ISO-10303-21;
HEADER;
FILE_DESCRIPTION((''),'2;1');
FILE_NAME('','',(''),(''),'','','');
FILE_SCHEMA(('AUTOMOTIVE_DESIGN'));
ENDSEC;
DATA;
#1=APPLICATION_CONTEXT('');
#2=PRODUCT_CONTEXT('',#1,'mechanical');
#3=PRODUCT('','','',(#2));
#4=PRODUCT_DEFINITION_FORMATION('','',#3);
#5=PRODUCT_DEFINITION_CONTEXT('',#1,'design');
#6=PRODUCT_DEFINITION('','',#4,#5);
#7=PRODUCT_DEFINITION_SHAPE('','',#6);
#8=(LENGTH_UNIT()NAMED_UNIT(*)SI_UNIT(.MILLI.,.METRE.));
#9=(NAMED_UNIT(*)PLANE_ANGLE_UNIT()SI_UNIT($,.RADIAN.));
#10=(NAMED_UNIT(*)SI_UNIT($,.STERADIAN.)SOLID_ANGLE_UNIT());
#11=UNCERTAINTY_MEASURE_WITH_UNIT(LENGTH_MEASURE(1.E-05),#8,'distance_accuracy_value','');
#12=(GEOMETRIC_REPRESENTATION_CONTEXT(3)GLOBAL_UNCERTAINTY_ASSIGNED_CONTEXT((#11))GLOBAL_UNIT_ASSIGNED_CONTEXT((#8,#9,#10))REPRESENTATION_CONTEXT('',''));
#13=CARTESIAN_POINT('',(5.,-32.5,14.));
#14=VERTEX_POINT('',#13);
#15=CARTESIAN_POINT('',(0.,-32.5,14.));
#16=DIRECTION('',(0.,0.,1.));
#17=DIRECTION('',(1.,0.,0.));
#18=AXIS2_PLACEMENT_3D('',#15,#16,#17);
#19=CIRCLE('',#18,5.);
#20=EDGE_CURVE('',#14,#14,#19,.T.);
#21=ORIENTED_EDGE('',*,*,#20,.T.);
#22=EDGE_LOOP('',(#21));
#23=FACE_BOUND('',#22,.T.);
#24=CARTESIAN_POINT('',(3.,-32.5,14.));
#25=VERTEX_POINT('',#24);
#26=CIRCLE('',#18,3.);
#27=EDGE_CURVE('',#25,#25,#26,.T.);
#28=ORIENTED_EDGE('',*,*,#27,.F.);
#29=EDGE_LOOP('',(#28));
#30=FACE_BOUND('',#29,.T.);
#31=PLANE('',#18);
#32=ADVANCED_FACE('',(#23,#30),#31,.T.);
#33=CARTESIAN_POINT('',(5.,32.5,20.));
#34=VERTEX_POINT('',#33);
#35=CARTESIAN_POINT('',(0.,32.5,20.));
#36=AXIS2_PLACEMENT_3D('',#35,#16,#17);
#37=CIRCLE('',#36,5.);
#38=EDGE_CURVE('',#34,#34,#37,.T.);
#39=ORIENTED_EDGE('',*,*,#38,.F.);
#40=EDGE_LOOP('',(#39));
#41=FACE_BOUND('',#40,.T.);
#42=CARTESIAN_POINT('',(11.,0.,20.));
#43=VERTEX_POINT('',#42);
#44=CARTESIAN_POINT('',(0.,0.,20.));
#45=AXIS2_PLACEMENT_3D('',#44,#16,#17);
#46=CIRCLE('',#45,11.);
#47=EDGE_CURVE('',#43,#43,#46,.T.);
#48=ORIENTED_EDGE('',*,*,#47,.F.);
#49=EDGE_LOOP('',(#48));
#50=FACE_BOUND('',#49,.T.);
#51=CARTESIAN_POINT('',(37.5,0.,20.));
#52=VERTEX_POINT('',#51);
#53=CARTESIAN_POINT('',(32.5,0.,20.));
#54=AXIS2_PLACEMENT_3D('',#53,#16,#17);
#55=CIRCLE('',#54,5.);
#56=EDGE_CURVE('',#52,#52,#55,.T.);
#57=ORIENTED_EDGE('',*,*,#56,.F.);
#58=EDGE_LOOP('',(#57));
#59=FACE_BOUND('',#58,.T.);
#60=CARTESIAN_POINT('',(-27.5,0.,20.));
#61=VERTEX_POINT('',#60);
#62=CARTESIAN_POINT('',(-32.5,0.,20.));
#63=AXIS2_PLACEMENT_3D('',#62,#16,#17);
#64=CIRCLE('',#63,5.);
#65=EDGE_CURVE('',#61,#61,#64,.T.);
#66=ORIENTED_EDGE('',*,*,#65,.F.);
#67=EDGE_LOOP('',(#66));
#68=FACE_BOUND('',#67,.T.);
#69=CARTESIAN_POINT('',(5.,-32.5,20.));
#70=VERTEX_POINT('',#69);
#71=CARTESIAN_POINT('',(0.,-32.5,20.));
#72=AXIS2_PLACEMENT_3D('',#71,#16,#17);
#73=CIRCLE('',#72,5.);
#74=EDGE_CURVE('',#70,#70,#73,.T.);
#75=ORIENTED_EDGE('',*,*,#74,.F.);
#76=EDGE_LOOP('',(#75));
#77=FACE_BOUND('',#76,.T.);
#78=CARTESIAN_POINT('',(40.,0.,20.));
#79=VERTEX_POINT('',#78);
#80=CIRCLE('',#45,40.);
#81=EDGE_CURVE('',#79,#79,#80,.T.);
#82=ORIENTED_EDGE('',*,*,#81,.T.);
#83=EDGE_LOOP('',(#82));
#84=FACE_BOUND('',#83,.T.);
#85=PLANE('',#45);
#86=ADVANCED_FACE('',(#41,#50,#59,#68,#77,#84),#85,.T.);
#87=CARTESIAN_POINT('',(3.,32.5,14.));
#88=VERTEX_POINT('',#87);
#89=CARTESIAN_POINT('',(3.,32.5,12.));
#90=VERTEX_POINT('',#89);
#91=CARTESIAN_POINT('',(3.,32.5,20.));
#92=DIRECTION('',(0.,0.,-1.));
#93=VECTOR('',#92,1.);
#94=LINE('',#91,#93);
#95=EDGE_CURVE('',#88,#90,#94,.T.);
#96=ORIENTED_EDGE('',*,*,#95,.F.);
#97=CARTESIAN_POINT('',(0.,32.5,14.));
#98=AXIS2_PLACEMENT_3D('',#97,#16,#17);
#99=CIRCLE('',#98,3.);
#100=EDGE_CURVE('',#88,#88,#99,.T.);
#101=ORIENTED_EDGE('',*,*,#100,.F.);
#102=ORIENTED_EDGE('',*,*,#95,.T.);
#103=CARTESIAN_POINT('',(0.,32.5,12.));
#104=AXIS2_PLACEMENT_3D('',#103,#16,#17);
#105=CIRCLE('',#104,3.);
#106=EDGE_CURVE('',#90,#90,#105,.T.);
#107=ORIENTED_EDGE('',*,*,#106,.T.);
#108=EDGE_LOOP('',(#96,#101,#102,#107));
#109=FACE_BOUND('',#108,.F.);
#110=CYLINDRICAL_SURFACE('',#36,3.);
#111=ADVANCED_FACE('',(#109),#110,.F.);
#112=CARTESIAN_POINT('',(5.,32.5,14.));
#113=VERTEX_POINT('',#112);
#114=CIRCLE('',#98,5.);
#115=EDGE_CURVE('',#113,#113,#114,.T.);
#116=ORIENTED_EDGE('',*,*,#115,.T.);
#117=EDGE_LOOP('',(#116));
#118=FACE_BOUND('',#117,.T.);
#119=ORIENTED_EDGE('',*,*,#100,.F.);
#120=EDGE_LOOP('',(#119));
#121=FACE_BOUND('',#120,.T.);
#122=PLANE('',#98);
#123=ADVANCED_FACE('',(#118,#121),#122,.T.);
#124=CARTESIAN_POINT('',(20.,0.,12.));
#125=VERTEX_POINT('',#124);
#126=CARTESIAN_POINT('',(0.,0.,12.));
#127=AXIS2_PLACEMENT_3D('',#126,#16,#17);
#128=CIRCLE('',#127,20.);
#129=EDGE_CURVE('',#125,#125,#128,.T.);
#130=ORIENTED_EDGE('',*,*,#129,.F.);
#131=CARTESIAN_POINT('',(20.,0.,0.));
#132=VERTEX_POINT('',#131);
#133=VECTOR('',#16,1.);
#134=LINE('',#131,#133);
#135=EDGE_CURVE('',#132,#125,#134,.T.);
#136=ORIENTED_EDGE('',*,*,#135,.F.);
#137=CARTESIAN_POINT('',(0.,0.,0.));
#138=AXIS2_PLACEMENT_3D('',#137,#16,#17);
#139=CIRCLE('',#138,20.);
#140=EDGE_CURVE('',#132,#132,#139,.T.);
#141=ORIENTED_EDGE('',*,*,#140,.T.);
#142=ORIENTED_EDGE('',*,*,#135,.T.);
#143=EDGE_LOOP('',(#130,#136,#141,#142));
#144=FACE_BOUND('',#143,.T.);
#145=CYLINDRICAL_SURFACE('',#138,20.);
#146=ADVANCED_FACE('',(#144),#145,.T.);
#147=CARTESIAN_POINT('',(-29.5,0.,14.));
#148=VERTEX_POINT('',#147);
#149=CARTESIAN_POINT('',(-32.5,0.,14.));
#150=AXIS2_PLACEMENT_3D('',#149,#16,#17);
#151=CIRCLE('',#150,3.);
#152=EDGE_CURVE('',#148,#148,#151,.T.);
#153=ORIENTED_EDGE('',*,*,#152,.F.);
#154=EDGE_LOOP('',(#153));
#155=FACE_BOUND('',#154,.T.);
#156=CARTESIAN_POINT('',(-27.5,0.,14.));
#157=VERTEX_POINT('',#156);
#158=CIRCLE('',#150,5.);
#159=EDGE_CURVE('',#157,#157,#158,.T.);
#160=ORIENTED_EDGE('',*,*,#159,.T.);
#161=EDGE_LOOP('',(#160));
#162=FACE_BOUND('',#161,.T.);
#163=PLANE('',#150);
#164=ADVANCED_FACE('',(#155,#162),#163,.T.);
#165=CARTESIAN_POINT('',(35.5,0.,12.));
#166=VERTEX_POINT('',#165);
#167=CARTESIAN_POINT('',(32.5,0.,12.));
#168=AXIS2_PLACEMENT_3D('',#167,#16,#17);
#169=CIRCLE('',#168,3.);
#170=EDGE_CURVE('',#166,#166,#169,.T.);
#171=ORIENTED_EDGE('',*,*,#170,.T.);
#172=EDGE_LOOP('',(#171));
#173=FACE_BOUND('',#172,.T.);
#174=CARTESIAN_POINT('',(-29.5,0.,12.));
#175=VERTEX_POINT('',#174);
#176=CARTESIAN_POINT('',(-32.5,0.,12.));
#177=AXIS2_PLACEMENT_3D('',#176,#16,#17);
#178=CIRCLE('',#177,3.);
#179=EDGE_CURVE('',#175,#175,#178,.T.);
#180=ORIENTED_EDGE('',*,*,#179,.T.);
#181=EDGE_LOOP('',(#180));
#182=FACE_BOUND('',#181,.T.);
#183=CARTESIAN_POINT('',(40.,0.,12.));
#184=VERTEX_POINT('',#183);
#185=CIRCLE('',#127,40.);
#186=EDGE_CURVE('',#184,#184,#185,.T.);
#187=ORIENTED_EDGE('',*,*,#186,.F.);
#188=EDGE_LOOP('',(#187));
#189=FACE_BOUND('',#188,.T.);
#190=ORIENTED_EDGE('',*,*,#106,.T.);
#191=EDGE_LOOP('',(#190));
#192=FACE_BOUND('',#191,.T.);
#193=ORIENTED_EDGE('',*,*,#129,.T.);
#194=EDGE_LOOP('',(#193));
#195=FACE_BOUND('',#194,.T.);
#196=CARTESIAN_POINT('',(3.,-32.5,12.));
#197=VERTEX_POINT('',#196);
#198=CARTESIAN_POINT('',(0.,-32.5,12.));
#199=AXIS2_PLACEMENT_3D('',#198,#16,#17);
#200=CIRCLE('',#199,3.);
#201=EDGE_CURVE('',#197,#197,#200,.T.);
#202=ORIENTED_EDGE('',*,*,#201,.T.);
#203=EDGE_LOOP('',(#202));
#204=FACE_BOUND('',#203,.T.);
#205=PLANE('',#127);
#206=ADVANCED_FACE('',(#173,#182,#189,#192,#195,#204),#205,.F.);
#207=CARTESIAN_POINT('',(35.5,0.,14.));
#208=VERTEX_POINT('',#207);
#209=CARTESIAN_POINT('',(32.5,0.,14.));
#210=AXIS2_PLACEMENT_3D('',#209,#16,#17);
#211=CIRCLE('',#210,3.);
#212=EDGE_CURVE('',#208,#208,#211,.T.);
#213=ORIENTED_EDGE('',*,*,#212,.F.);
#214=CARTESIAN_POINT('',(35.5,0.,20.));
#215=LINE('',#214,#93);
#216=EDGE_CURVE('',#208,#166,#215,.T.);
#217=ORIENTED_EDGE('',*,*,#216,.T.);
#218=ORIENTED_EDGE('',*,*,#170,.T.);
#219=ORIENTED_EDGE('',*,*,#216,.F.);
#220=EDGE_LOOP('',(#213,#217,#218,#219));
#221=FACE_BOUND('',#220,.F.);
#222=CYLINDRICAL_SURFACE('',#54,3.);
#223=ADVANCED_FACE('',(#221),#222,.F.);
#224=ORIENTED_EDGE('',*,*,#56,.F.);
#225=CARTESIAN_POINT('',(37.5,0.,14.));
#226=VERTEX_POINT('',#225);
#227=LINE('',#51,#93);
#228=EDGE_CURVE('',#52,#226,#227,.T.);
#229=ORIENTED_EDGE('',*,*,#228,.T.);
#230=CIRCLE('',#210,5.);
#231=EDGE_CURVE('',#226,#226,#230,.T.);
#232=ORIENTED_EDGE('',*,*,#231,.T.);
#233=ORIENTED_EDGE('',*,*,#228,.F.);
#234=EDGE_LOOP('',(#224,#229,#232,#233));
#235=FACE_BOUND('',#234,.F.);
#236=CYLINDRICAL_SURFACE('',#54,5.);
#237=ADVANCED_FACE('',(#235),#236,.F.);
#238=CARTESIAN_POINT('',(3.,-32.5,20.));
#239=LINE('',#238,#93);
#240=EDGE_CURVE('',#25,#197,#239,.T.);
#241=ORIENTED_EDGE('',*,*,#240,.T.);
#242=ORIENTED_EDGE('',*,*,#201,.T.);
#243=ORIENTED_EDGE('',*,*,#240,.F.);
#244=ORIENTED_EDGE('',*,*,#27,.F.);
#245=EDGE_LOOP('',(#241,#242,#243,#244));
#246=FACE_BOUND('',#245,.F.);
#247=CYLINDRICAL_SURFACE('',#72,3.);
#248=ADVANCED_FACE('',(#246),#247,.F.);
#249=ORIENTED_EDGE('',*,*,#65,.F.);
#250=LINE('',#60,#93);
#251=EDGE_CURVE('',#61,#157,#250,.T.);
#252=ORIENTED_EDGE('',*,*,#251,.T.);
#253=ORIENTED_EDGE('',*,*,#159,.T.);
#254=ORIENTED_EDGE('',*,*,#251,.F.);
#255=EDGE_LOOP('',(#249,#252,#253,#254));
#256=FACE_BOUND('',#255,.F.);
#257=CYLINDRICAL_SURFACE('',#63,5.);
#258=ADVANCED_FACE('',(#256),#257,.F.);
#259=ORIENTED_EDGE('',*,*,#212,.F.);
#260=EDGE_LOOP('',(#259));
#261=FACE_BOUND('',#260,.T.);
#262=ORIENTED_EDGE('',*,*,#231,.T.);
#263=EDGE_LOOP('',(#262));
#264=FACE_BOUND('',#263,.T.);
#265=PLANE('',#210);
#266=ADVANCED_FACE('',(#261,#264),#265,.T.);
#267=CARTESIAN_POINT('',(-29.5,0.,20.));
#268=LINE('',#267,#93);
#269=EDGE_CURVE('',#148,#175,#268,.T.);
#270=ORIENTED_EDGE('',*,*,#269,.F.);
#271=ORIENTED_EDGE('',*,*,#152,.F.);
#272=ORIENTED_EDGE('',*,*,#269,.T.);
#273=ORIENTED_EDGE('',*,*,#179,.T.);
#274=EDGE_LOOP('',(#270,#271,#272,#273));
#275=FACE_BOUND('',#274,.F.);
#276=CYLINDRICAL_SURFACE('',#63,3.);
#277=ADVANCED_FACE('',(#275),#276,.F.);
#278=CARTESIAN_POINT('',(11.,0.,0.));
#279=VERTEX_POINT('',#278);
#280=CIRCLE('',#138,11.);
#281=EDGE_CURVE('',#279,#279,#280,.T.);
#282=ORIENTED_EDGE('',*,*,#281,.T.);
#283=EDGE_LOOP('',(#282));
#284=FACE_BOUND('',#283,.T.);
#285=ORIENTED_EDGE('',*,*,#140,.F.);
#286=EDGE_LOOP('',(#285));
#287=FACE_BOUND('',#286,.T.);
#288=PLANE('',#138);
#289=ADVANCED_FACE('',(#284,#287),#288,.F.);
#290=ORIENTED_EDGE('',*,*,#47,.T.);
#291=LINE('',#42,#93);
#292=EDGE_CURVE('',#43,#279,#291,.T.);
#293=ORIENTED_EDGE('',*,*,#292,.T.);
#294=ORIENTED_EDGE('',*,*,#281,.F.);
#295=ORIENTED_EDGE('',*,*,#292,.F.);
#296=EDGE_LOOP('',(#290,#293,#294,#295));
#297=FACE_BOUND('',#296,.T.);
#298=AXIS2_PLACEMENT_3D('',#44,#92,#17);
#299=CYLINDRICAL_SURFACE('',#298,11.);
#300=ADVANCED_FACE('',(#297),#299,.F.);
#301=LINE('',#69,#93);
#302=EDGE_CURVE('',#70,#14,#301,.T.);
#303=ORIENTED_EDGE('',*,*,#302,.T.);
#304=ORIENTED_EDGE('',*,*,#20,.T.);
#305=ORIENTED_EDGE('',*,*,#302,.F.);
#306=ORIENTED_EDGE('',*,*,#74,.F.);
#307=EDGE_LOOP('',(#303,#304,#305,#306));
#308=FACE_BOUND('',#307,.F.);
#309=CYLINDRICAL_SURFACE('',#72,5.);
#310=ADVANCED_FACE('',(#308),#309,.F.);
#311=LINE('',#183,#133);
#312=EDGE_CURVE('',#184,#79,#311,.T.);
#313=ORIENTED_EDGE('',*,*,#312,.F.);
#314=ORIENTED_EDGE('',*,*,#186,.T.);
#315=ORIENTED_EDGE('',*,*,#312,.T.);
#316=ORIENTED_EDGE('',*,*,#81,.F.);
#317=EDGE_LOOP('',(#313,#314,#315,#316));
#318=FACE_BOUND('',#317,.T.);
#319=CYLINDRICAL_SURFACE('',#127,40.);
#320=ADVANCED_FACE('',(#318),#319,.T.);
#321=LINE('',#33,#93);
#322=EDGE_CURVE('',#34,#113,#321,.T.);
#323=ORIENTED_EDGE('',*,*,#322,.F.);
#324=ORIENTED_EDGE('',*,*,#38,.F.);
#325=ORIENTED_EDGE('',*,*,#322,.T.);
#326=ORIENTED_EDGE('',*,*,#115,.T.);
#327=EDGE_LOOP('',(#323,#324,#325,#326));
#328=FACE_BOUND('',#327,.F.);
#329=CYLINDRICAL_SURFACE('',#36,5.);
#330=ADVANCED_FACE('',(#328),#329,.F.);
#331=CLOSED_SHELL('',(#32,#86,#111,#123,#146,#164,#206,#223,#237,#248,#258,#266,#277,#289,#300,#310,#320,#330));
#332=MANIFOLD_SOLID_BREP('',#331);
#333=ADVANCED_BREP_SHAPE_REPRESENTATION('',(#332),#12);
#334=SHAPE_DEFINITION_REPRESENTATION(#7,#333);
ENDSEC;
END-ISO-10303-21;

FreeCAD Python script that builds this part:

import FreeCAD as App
import Part
import Sketcher

V = App.Vector

doc = App.newDocument("Part")
params = doc.addObject("Spreadsheet::Sheet", "Params")
for row, (alias, value) in enumerate([
    ("sketch1_width", "9 mm"),
    ("sketch1_width2", "20 mm"),
    ("sketch1_height", "12 mm"),
    ("revolution_angle", "360 deg"),
    ("sketch2_diameter", "6 mm"),
    ("sketch3_diameter", "10 mm"),
    ("pocket2_length", "6 mm"),
], start=1):
    params.set(f"A{row}", alias)
    params.set(f"B{row}", "=" + value)
    params.setAlias(f"B{row}", alias)

body = doc.addObject("PartDesign::Body", "Body")

# Sketch on XZ plane
sketch1 = body.newObject("Sketcher::SketchObject", "Sketch")
sketch1.AttachmentSupport = (doc.getObject("XZ_Plane"), [""])
sketch1.MapMode = "FlatFace"
sketch1.addGeometry([
    Part.LineSegment(V(11, 20, 0), V(11, 0, 0)),  # 0
    Part.LineSegment(V(11, 0, 0), V(20, 0, 0)),  # 1
    Part.LineSegment(V(20, 0, 0), V(20, 12, 0)),  # 2
    Part.LineSegment(V(20, 12, 0), V(40, 12, 0)),  # 3
    Part.LineSegment(V(40, 12, 0), V(40, 20, 0)),  # 4
    Part.LineSegment(V(40, 20, 0), V(11, 20, 0)),  # 5
], False)
sketch1.addConstraint([
    Sketcher.Constraint("Coincident", 0, 2, 1, 1),
    Sketcher.Constraint("Coincident", 1, 2, 2, 1),
    Sketcher.Constraint("Coincident", 2, 2, 3, 1),
    Sketcher.Constraint("Coincident", 3, 2, 4, 1),
    Sketcher.Constraint("Coincident", 4, 2, 5, 1),
    Sketcher.Constraint("Coincident", 5, 2, 0, 1),
    Sketcher.Constraint("Vertical", 0),
    Sketcher.Constraint("Horizontal", 1),
    Sketcher.Constraint("Vertical", 2),
    Sketcher.Constraint("Horizontal", 3),
    Sketcher.Constraint("Vertical", 4),
    Sketcher.Constraint("Horizontal", 5),
    Sketcher.Constraint("PointOnObject", 0, 2, -1),
    Sketcher.Constraint("Equal", 3, 0),
    Sketcher.Constraint("DistanceX", 1, 1, 1, 2, 9.0),
    Sketcher.Constraint("DistanceX", 3, 1, 3, 2, 20.0),
    Sketcher.Constraint("DistanceY", 2, 1, 2, 2, 12.0),
    Sketcher.Constraint("DistanceX", -1, 1, 0, 2, 11.0),
])
sketch1.setExpression("Constraints[14]", "Params.sketch1_width")
sketch1.setExpression("Constraints[15]", "Params.sketch1_width2")
sketch1.setExpression("Constraints[16]", "Params.sketch1_height")
revolution = body.newObject("PartDesign::Revolution", "Revolution")
revolution.Profile = sketch1
revolution.ReferenceAxis = (sketch1, ["V_Axis"])
revolution.setExpression("Angle", "Params.revolution_angle")

# Sketch on XY plane
sketch2 = body.newObject("Sketcher::SketchObject", "Sketch001")
sketch2.AttachmentSupport = (doc.getObject("XY_Plane"), [""])
sketch2.MapMode = "FlatFace"
sketch2.AttachmentOffset = App.Placement(V(0, 0, 20), App.Rotation())
sketch2.addGeometry([
    Part.Circle(V(0, 32.5, 0), V(0, 0, 1), 3),
    Part.Circle(V(-32.5, 0, 0), V(0, 0, 1), 3),
    Part.Circle(V(0, -32.5, 0), V(0, 0, 1), 3),
    Part.Circle(V(32.5, 0, 0), V(0, 0, 1), 3),
], False)
sketch2.addConstraint([
    Sketcher.Constraint("Equal", 0, 1),
    Sketcher.Constraint("Equal", 1, 2),
    Sketcher.Constraint("Equal", 2, 3),
    Sketcher.Constraint("Symmetric", 0, 3, 2, 3, -1, 1),
    Sketcher.Constraint("Symmetric", 1, 3, 3, 3, -1, 1),
    Sketcher.Constraint("PointOnObject", 0, 3, -2),
    Sketcher.Constraint("PointOnObject", 1, 3, -1),
    Sketcher.Constraint("Diameter", 0, 6.0),
    Sketcher.Constraint("DistanceY", 2, 3, 0, 3, 65.0),
    Sketcher.Constraint("DistanceX", 1, 3, 3, 3, 65.0),
])
sketch2.setExpression("Constraints[7]", "Params.sketch2_diameter")
pocket1 = body.newObject("PartDesign::Pocket", "Pocket")
pocket1.Profile = sketch2
pocket1.Type = "ThroughAll"

# Sketch on XY plane
sketch3 = body.newObject("Sketcher::SketchObject", "Sketch002")
sketch3.AttachmentSupport = (doc.getObject("XY_Plane"), [""])
sketch3.MapMode = "FlatFace"
sketch3.AttachmentOffset = App.Placement(V(0, 0, 20), App.Rotation())
sketch3.addGeometry([
    Part.Circle(V(0, 32, 0), V(0, 0, 1), 5),
    Part.Circle(V(-32, 0, 0), V(0, 0, 1), 5),
    Part.Circle(V(0, -32, 0), V(0, 0, 1), 5),
    Part.Circle(V(32, 0, 0), V(0, 0, 1), 5),
], False)
sketch3.addConstraint([
    Sketcher.Constraint("Equal", 0, 1),
    Sketcher.Constraint("Equal", 1, 2),
    Sketcher.Constraint("Equal", 2, 3),
    Sketcher.Constraint("Symmetric", 0, 3, 2, 3, -1, 1),
    Sketcher.Constraint("Symmetric", 1, 3, 3, 3, -1, 1),
    Sketcher.Constraint("PointOnObject", 0, 3, -2),
    Sketcher.Constraint("PointOnObject", 1, 3, -1),
    Sketcher.Constraint("Diameter", 0, 10.0),
    Sketcher.Constraint("DistanceY", 2, 3, 0, 3, 65.0),
    Sketcher.Constraint("DistanceX", 1, 3, 3, 3, 65.0),
])
sketch3.setExpression("Constraints[7]", "Params.sketch3_diameter")
pocket2 = body.newObject("PartDesign::Pocket", "Pocket001")
pocket2.Profile = sketch3
pocket2.setExpression("Length", "Params.pocket2_length")

doc.recompute()
